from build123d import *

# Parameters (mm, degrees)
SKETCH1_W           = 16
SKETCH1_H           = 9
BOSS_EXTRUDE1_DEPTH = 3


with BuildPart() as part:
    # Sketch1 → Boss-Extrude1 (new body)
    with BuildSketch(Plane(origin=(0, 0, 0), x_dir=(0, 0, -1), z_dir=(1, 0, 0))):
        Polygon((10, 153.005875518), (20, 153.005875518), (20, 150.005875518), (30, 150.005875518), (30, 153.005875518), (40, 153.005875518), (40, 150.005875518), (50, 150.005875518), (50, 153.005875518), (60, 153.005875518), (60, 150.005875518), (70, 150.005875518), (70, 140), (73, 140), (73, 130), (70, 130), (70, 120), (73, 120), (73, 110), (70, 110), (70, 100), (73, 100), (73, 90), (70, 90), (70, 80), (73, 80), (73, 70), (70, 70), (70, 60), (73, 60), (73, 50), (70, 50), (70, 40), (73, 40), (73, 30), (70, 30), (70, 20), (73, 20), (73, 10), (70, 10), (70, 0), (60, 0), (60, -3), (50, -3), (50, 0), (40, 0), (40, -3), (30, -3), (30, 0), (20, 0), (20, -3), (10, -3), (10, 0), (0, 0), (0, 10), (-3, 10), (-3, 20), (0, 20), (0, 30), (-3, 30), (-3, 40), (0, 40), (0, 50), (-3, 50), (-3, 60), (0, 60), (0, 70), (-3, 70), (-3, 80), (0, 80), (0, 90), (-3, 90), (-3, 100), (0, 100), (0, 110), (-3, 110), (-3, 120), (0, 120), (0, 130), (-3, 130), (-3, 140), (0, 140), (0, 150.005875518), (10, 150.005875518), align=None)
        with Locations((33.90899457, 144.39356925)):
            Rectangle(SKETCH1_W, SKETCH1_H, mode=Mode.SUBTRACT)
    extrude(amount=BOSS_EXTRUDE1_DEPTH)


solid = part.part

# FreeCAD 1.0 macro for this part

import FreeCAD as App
import Part
import Sketcher

V = App.Vector


def add_polygon(sketch, points):
    """Adds a closed chain of lines whose ends are joined by coincident constraints."""
    first, n = sketch.GeometryCount, len(points)
    for a, b in zip(points, points[1:] + points[:1]):
        sketch.addGeometry(Part.LineSegment(App.Vector(*a, 0), App.Vector(*b, 0)), False)
    for i in range(n):
        sketch.addConstraint(Sketcher.Constraint("Coincident", first + i, 2, first + (i + 1) % n, 1))

doc = App.newDocument("Part")
params = doc.addObject("Spreadsheet::Sheet", "Params")
for row, (alias, value) in enumerate([
    ("sketch1_width", "3 mm"),
    ("sketch1_width2", "10 mm"),
    ("sketch1_width3", "9 mm"),
    ("sketch1_height", "16 mm"),
    ("pad1_length", "3 mm"),
], start=1):
    params.set(f"A{row}", alias)
    params.set(f"B{row}", "=" + value)
    params.setAlias(f"B{row}", alias)

body = doc.addObject("PartDesign::Body", "Body")

sketch1 = body.newObject("Sketcher::SketchObject", "Sketch")
sketch1.AttachmentSupport = (doc.getObject("YZ_Plane"), [""])
sketch1.MapMode = "FlatFace"
add_polygon(sketch1, [(153, -20), (153, -10), (150, -10), (150, 0), (140, 0), (140, 3), (130, 3), (130, 0), (120, 0), (120, 3), (110, 3), (110, 0), (100, 0), (100, 3), (90, 3), (90, 0), (80, 0), (80, 3), (70, 3), (70, 0), (60, 0), (60, 3), (50, 3), (50, 0), (40, 0), (40, 3), (30, 3), (30, 0), (20, 0), (20, 3), (10, 3), (10, 0), (0, 0), (0, -10), (-3, -10), (-3, -20), (0, -20), (0, -30), (-3, -30), (-3, -40), (0, -40), (0, -50), (-3, -50), (-3, -60), (0, -60), (0, -70), (10, -70), (10, -73), (20, -73), (20, -70), (30, -70), (30, -73), (40, -73), (40, -70), (50, -70), (50, -73), (60, -73), (60, -70), (70, -70), (70, -73), (80, -73), (80, -70), (90, -70), (90, -73), (100, -73), (100, -70), (110, -70), (110, -73), (120, -73), (120, -70), (130, -70), (130, -73), (140, -73), (140, -70), (150, -70), (150, -60), (153, -60), (153, -50), (150, -50), (150, -40), (153, -40), (153, -30), (150, -30), (150, -20)])
add_polygon(sketch1, [(139.9, -25.9), (148.9, -25.9), (148.9, -41.9), (139.9, -41.9)])
sketch1.addConstraint([
    Sketcher.Constraint("Vertical", 0),
    Sketcher.Constraint("Horizontal", 1),
    Sketcher.Constraint("Vertical", 2),
    Sketcher.Constraint("Horizontal", 3),
    Sketcher.Constraint("Vertical", 4),
    Sketcher.Constraint("Horizontal", 5),
    Sketcher.Constraint("Vertical", 6),
    Sketcher.Constraint("Horizontal", 7),
    Sketcher.Constraint("Vertical", 8),
    Sketcher.Constraint("Horizontal", 9),
    Sketcher.Constraint("Vertical", 10),
    Sketcher.Constraint("Horizontal", 11),
    Sketcher.Constraint("Vertical", 12),
    Sketcher.Constraint("Horizontal", 13),
    Sketcher.Constraint("Vertical", 14),
    Sketcher.Constraint("Horizontal", 15),
    Sketcher.Constraint("Vertical", 16),
    Sketcher.Constraint("Horizontal", 17),
    Sketcher.Constraint("Vertical", 18),
    Sketcher.Constraint("Horizontal", 19),
    Sketcher.Constraint("Vertical", 20),
    Sketcher.Constraint("Horizontal", 21),
    Sketcher.Constraint("Vertical", 22),
    Sketcher.Constraint("Horizontal", 23),
    Sketcher.Constraint("Vertical", 24),
    Sketcher.Constraint("Horizontal", 25),
    Sketcher.Constraint("Vertical", 26),
    Sketcher.Constraint("Horizontal", 27),
    Sketcher.Constraint("Vertical", 28),
    Sketcher.Constraint("Horizontal", 29),
    Sketcher.Constraint("Vertical", 30),
    Sketcher.Constraint("Horizontal", 31),
    Sketcher.Constraint("Vertical", 32),
    Sketcher.Constraint("Horizontal", 33),
    Sketcher.Constraint("Vertical", 34),
    Sketcher.Constraint("Horizontal", 35),
    Sketcher.Constraint("Vertical", 36),
    Sketcher.Constraint("Horizontal", 37),
    Sketcher.Constraint("Vertical", 38),
    Sketcher.Constraint("Horizontal", 39),
    Sketcher.Constraint("Vertical", 40),
    Sketcher.Constraint("Horizontal", 41),
    Sketcher.Constraint("Vertical", 42),
    Sketcher.Constraint("Horizontal", 43),
    Sketcher.Constraint("Vertical", 44),
    Sketcher.Constraint("Horizontal", 45),
    Sketcher.Constraint("Vertical", 46),
    Sketcher.Constraint("Horizontal", 47),
    Sketcher.Constraint("Vertical", 48),
    Sketcher.Constraint("Horizontal", 49),
    Sketcher.Constraint("Vertical", 50),
    Sketcher.Constraint("Horizontal", 51),
    Sketcher.Constraint("Vertical", 52),
    Sketcher.Constraint("Horizontal", 53),
    Sketcher.Constraint("Vertical", 54),
    Sketcher.Constraint("Horizontal", 55),
    Sketcher.Constraint("Vertical", 56),
    Sketcher.Constraint("Horizontal", 57),
    Sketcher.Constraint("Vertical", 58),
    Sketcher.Constraint("Horizontal", 59),
    Sketcher.Constraint("Vertical", 60),
    Sketcher.Constraint("Horizontal", 61),
    Sketcher.Constraint("Vertical", 62),
    Sketcher.Constraint("Horizontal", 63),
    Sketcher.Constraint("Vertical", 64),
    Sketcher.Constraint("Horizontal", 65),
    Sketcher.Constraint("Vertical", 66),
    Sketcher.Constraint("Horizontal", 67),
    Sketcher.Constraint("Vertical", 68),
    Sketcher.Constraint("Horizontal", 69),
    Sketcher.Constraint("Vertical", 70),
    Sketcher.Constraint("Horizontal", 71),
    Sketcher.Constraint("Vertical", 72),
    Sketcher.Constraint("Horizontal", 73),
    Sketcher.Constraint("Vertical", 74),
    Sketcher.Constraint("Horizontal", 75),
    Sketcher.Constraint("Vertical", 76),
    Sketcher.Constraint("Horizontal", 77),
    Sketcher.Constraint("Vertical", 78),
    Sketcher.Constraint("Horizontal", 79),
    Sketcher.Constraint("Vertical", 80),
    Sketcher.Constraint("Horizontal", 81),
    Sketcher.Constraint("Vertical", 82),
    Sketcher.Constraint("Horizontal", 83),
    Sketcher.Constraint("Horizontal", 84),
    Sketcher.Constraint("Vertical", 85),
    Sketcher.Constraint("Horizontal", 86),
    Sketcher.Constraint("Vertical", 87),
    Sketcher.Constraint("Coincident", 31, 2, -1, 1),
    Sketcher.Constraint("PointOnObject", 2, 2, -1),
    Sketcher.Constraint("PointOnObject", 6, 2, -1),
    Sketcher.Constraint("PointOnObject", 10, 2, -1),
    Sketcher.Constraint("PointOnObject", 14, 2, -1),
    Sketcher.Constraint("PointOnObject", 18, 2, -1),
    Sketcher.Constraint("PointOnObject", 22, 2, -1),
    Sketcher.Constraint("PointOnObject", 26, 2, -1),
    Sketcher.Constraint("PointOnObject", 35, 2, -2),
    Sketcher.Constraint("PointOnObject", 39, 2, -2),
    Sketcher.Constraint("PointOnObject", 43, 2, -2),
    Sketcher.Constraint("Horizontal", 5, 2, 8, 2),
    Sketcher.Constraint("Horizontal", 9, 2, 12, 2),
    Sketcher.Constraint("Horizontal", 13, 2, 16, 2),
    Sketcher.Constraint("Horizontal", 17, 2, 20, 2),
    Sketcher.Constraint("Horizontal", 21, 2, 24, 2),
    Sketcher.Constraint("Horizontal", 25, 2, 28, 2),
    Sketcher.Constraint("Horizontal", 1, 2, 32, 2),
    Sketcher.Constraint("Horizontal", 45, 2, 48, 2),
    Sketcher.Constraint("Horizontal", 47, 2, 50, 2),
    Sketcher.Constraint("Horizontal", 49, 2, 52, 2),
    Sketcher.Constraint("Horizontal", 51, 2, 54, 2),
    Sketcher.Constraint("Horizontal", 53, 2, 56, 2),
    Sketcher.Constraint("Horizontal", 55, 2, 58, 2),
    Sketcher.Constraint("Horizontal", 57, 2, 60, 2),
    Sketcher.Constraint("Horizontal", 59, 2, 62, 2),
    Sketcher.Constraint("Horizontal", 61, 2, 64, 2),
    Sketcher.Constraint("Horizontal", 63, 2, 66, 2),
    Sketcher.Constraint("Horizontal", 65, 2, 68, 2),
    Sketcher.Constraint("Horizontal", 67, 2, 70, 2),
    Sketcher.Constraint("Horizontal", 69, 2, 72, 2),
    Sketcher.Constraint("Horizontal", 43, 2, 74, 2),
    Sketcher.Constraint("Horizontal", 41, 2, 76, 2),
    Sketcher.Constraint("Horizontal", 39, 2, 78, 2),
    Sketcher.Constraint("Horizontal", 37, 2, 80, 2),
    Sketcher.Constraint("Horizontal", 35, 2, 82, 2),
    Sketcher.Constraint("Vertical", 34, 2, 37, 2),
    Sketcher.Constraint("Vertical", 38, 2, 41, 2),
    Sketcher.Constraint("Vertical", 30, 2, 45, 2),
    Sketcher.Constraint("Vertical", 28, 2, 47, 2),
    Sketcher.Constraint("Vertical", 26, 2, 49, 2),
    Sketcher.Constraint("Vertical", 24, 2, 51, 2),
    Sketcher.Constraint("Vertical", 22, 2, 53, 2),
    Sketcher.Constraint("Vertical", 20, 2, 55, 2),
    Sketcher.Constraint("Vertical", 18, 2, 57, 2),
    Sketcher.Constraint("Vertical", 16, 2, 59, 2),
    Sketcher.Constraint("Vertical", 14, 2, 61, 2),
    Sketcher.Constraint("Vertical", 12, 2, 63, 2),
    Sketcher.Constraint("Vertical", 10, 2, 65, 2),
    Sketcher.Constraint("Vertical", 8, 2, 67, 2),
    Sketcher.Constraint("Vertical", 6, 2, 69, 2),
    Sketcher.Constraint("Vertical", 4, 2, 71, 2),
    Sketcher.Constraint("Vertical", 2, 2, 73, 2),
    Sketcher.Constraint("Vertical", 0, 2, 75, 2),
    Sketcher.Constraint("Vertical", 74, 2, 77, 2),
    Sketcher.Constraint("Vertical", 76, 2, 79, 2),
    Sketcher.Constraint("Vertical", 78, 2, 81, 2),
    Sketcher.Constraint("Equal", 5, 7),
    Sketcher.Constraint("Equal", 7, 9),
    Sketcher.Constraint("Equal", 9, 11),
    Sketcher.Constraint("Equal", 11, 13),
    Sketcher.Constraint("Equal", 13, 15),
    Sketcher.Constraint("Equal", 15, 17),
    Sketcher.Constraint("Equal", 17, 19),
    Sketcher.Constraint("Equal", 19, 21),
    Sketcher.Constraint("Equal", 21, 23),
    Sketcher.Constraint("Equal", 23, 25),
    Sketcher.Constraint("Equal", 25, 27),
    Sketcher.Constraint("Equal", 27, 29),
    Sketcher.Constraint("Equal", 29, 31),
    Sketcher.Constraint("Equal", 1, 33),
    Sketcher.Constraint("Equal", 71, 0),
    Sketcher.Constraint("Equal", 0, 2),
    Sketcher.Constraint("Equal", 83, 4),
    Sketcher.Constraint("Equal", 34, 36),
    Sketcher.Constraint("Equal", 36, 38),
    Sketcher.Constraint("Equal", 38, 40),
    Sketcher.Constraint("Equal", 40, 42),
    Sketcher.Constraint("Equal", 42, 44),
    Sketcher.Constraint("Equal", 30, 46),
    Sketcher.Constraint("DistanceX", 1, 2, 1, 1, 3.0),
    Sketcher.Constraint("DistanceX", 5, 2, 5, 1, 10.0),
    Sketcher.Constraint("DistanceX", 84, 1, 84, 2, 9.0),
    Sketcher.Constraint("DistanceY", 85, 2, 85, 1, 16.0),
    Sketcher.Constraint("DistanceX", 3, 2, 3, 1, 10.005876),
    Sketcher.Constraint("DistanceX", -1, 1, 84, 2, 148.893569),
    Sketcher.Constraint("DistanceY", 84, 2, -1, 1, 25.908995),
])
sketch1.setExpression("Constraints[256]", "Params.sketch1_width")
sketch1.setExpression("Constraints[257]", "Params.sketch1_width2")
sketch1.setExpression("Constraints[258]", "Params.sketch1_width3")
sketch1.setExpression("Constraints[259]", "Params.sketch1_height")
pad1 = body.newObject("PartDesign::Pad", "Pad")
pad1.Profile = sketch1
pad1.setExpression("Length", "Params.pad1_length")

doc.recompute()
